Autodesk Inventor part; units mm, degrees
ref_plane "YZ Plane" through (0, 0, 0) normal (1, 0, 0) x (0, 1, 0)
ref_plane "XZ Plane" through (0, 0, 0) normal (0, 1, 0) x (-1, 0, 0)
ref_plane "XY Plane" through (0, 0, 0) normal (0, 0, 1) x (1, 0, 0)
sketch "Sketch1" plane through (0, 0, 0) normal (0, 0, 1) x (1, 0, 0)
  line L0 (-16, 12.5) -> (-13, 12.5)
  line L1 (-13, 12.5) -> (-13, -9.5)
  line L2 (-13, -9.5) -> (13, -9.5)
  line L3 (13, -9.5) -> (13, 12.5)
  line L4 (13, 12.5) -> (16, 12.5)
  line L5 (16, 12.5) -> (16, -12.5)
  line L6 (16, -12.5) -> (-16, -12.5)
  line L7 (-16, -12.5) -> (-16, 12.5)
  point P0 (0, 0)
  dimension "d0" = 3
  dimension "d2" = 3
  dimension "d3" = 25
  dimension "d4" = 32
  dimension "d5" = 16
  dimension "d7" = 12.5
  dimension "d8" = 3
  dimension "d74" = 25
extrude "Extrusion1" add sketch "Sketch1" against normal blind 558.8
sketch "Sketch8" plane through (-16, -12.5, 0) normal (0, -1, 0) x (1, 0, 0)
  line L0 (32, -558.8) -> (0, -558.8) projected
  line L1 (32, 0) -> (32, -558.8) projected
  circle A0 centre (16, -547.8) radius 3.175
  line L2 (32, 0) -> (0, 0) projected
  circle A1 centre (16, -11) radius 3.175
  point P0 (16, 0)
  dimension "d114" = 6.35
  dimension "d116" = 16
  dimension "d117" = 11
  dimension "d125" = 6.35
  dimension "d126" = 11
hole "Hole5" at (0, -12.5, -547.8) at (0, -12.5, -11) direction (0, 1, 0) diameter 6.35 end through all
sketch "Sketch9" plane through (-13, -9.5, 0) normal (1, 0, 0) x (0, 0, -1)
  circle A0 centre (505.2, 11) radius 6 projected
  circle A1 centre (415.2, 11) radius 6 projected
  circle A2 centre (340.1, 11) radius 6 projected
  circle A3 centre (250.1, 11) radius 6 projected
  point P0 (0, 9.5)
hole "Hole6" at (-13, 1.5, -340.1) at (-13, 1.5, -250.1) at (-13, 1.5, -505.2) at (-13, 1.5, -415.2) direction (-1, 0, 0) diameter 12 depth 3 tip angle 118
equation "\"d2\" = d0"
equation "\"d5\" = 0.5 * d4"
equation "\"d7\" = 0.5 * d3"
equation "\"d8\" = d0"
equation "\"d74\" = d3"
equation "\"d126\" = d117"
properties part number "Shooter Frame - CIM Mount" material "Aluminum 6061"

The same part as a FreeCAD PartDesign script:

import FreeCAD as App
import Part
import Sketcher

V = App.Vector


def add_polygon(sketch, points):
    """Adds a closed chain of lines whose ends are joined by coincident constraints."""
    first, n = sketch.GeometryCount, len(points)
    for a, b in zip(points, points[1:] + points[:1]):
        sketch.addGeometry(Part.LineSegment(App.Vector(*a, 0), App.Vector(*b, 0)), False)
    for i in range(n):
        sketch.addConstraint(Sketcher.Constraint("Coincident", first + i, 2, first + (i + 1) % n, 1))

doc = App.newDocument("Part")
params = doc.addObject("Spreadsheet::Sheet", "Params")
for row, (alias, value) in enumerate([
    ("sketch1_width", "3 mm"),
    ("sketch1_width2", "32 mm"),
    ("sketch1_height", "25 mm"),
    ("pad1_length", "558.8 mm"),
    ("sketch2_diameter", "6.35 mm"),
    ("hole_diameter", "6.35 mm"),
    ("sketch3_diameter", "12 mm"),
    ("hole2_diameter", "12 mm"),
    ("hole2_depth", "3 mm"),
], start=1):
    params.set(f"A{row}", alias)
    params.set(f"B{row}", "=" + value)
    params.setAlias(f"B{row}", alias)

body = doc.addObject("PartDesign::Body", "Body")

sketch1 = doc.addObject("Sketcher::SketchObject", "Sketch")
body.addObject(sketch1)
sketch1.AttachmentSupport = (doc.XY_Plane, [""])
sketch1.MapMode = "FlatFace"
add_polygon(sketch1, [(-13, 12.5), (-16, 12.5), (-16, -12.5), (16, -12.5), (16, 12.5), (13, 12.5), (13, -9.5), (-13, -9.5)])
sketch1.addConstraint(Sketcher.Constraint("Horizontal", 0))
sketch1.addConstraint(Sketcher.Constraint("Vertical", 1))
sketch1.addConstraint(Sketcher.Constraint("Horizontal", 2))
sketch1.addConstraint(Sketcher.Constraint("Vertical", 3))
sketch1.addConstraint(Sketcher.Constraint("Horizontal", 4))
sketch1.addConstraint(Sketcher.Constraint("Vertical", 5))
sketch1.addConstraint(Sketcher.Constraint("Horizontal", 6))
sketch1.addConstraint(Sketcher.Constraint("Vertical", 7))
sketch1.addConstraint(Sketcher.Constraint("Symmetric", 0, 2, 2, 2, -1, 1))
sketch1.addConstraint(Sketcher.Constraint("Symmetric", 4, 2, 7, 2, -2))
sketch1.addConstraint(Sketcher.Constraint("DistanceX", 0, 2, 0, 1, 3.0))
sketch1.addConstraint(Sketcher.Constraint("DistanceX", 2, 1, 2, 2, 32.0))
sketch1.addConstraint(Sketcher.Constraint("DistanceY", 1, 2, 1, 1, 25.0))
sketch1.addConstraint(Sketcher.Constraint("DistanceY", 2, 2, 5, 2, 3.0))
sketch1.setExpression("Constraints[18]", "Params.sketch1_width")
sketch1.setExpression("Constraints[19]", "Params.sketch1_width2")
sketch1.setExpression("Constraints[20]", "Params.sketch1_height")
pad1 = doc.addObject("PartDesign::Pad", "Pad")
body.addObject(pad1)
pad1.Profile = sketch1
pad1.setExpression("Length", "Params.pad1_length")
pad1.Reversed = True

sketch2 = doc.addObject("Sketcher::SketchObject", "Sketch001")
body.addObject(sketch2)
sketch2.AttachmentSupport = (doc.XZ_Plane, [""])
sketch2.MapMode = "FlatFace"
sketch2.AttachmentOffset = App.Placement(V(0, 0, 12.5), App.Rotation())
sketch2.addGeometry(Part.Circle(V(0, -547.8, 0), V(0, 0, 1), 3.2), False)
sketch2.addGeometry(Part.Circle(V(0, -11, 0), V(0, 0, 1), 3.2), False)
sketch2.addConstraint(Sketcher.Constraint("Equal", 0, 1))
sketch2.addConstraint(Sketcher.Constraint("PointOnObject", 0, 3, -2))
sketch2.addConstraint(Sketcher.Constraint("PointOnObject", 1, 3, -2))
sketch2.addConstraint(Sketcher.Constraint("Diameter", 0, 6.35))
sketch2.addConstraint(Sketcher.Constraint("DistanceY", 1, 3, -1, 1, 11.0))
sketch2.addConstraint(Sketcher.Constraint("DistanceY", 0, 3, -1, 1, 547.8))
sketch2.setExpression("Constraints[3]", "Params.sketch2_diameter")
doc.recompute()
hole = doc.addObject("PartDesign::Hole", "Hole")
body.addObject(hole)
hole.Profile = sketch2
hole.ThreadType = "None"
hole.setExpression("Diameter", "Params.hole_diameter")
hole.DepthType = "ThroughAll"

sketch3 = doc.addObject("Sketcher::SketchObject", "Sketch002")
body.addObject(sketch3)
sketch3.AttachmentSupport = (doc.YZ_Plane, [""])
sketch3.MapMode = "FlatFace"
sketch3.AttachmentOffset = App.Placement(V(0, 0, -13), App.Rotation())
sketch3.addGeometry(Part.Circle(V(2, -340, 0), V(0, 0, 1), 6), False)
sketch3.addGeometry(Part.Circle(V(2, -250, 0), V(0, 0, 1), 6), False)
sketch3.addGeometry(Part.Circle(V(2, -505, 0), V(0, 0, 1), 6), False)
sketch3.addGeometry(Part.Circle(V(2, -415, 0), V(0, 0, 1), 6), False)
sketch3.addConstraint(Sketcher.Constraint("Equal", 0, 1))
sketch3.addConstraint(Sketcher.Constraint("Equal", 1, 2))
sketch3.addConstraint(Sketcher.Constraint("Equal", 2, 3))
sketch3.addConstraint(Sketcher.Constraint("Vertical", 0, 3, 1, 3))
sketch3.addConstraint(Sketcher.Constraint("Vertical", 1, 3, 2, 3))
sketch3.addConstraint(Sketcher.Constraint("Vertical", 2, 3, 3, 3))
sketch3.addConstraint(Sketcher.Constraint("Diameter", 0, 12.0))
sketch3.addConstraint(Sketcher.Constraint("DistanceY", 0, 3, 1, 3, 90.0))
sketch3.addConstraint(Sketcher.Constraint("DistanceY", 2, 3, 3, 3, 90.0))
sketch3.addConstraint(Sketcher.Constraint("DistanceX", -1, 1, 0, 3, 1.5))
sketch3.addConstraint(Sketcher.Constraint("DistanceY", 0, 3, -1, 1, 340.1))
sketch3.addConstraint(Sketcher.Constraint("DistanceY", 2, 3, -1, 1, 505.2))
sketch3.setExpression("Constraints[6]", "Params.sketch3_diameter")
doc.recompute()
hole2 = doc.addObject("PartDesign::Hole", "Hole001")
body.addObject(hole2)
hole2.Profile = sketch3
hole2.ThreadType = "None"
hole2.setExpression("Diameter", "Params.hole2_diameter")
hole2.DepthType = "Dimension"
hole2.setExpression("Depth", "Params.hole2_depth")
hole2.DrillPoint = "Angled"
hole2.DrillPointAngle = 118

doc.recompute()
